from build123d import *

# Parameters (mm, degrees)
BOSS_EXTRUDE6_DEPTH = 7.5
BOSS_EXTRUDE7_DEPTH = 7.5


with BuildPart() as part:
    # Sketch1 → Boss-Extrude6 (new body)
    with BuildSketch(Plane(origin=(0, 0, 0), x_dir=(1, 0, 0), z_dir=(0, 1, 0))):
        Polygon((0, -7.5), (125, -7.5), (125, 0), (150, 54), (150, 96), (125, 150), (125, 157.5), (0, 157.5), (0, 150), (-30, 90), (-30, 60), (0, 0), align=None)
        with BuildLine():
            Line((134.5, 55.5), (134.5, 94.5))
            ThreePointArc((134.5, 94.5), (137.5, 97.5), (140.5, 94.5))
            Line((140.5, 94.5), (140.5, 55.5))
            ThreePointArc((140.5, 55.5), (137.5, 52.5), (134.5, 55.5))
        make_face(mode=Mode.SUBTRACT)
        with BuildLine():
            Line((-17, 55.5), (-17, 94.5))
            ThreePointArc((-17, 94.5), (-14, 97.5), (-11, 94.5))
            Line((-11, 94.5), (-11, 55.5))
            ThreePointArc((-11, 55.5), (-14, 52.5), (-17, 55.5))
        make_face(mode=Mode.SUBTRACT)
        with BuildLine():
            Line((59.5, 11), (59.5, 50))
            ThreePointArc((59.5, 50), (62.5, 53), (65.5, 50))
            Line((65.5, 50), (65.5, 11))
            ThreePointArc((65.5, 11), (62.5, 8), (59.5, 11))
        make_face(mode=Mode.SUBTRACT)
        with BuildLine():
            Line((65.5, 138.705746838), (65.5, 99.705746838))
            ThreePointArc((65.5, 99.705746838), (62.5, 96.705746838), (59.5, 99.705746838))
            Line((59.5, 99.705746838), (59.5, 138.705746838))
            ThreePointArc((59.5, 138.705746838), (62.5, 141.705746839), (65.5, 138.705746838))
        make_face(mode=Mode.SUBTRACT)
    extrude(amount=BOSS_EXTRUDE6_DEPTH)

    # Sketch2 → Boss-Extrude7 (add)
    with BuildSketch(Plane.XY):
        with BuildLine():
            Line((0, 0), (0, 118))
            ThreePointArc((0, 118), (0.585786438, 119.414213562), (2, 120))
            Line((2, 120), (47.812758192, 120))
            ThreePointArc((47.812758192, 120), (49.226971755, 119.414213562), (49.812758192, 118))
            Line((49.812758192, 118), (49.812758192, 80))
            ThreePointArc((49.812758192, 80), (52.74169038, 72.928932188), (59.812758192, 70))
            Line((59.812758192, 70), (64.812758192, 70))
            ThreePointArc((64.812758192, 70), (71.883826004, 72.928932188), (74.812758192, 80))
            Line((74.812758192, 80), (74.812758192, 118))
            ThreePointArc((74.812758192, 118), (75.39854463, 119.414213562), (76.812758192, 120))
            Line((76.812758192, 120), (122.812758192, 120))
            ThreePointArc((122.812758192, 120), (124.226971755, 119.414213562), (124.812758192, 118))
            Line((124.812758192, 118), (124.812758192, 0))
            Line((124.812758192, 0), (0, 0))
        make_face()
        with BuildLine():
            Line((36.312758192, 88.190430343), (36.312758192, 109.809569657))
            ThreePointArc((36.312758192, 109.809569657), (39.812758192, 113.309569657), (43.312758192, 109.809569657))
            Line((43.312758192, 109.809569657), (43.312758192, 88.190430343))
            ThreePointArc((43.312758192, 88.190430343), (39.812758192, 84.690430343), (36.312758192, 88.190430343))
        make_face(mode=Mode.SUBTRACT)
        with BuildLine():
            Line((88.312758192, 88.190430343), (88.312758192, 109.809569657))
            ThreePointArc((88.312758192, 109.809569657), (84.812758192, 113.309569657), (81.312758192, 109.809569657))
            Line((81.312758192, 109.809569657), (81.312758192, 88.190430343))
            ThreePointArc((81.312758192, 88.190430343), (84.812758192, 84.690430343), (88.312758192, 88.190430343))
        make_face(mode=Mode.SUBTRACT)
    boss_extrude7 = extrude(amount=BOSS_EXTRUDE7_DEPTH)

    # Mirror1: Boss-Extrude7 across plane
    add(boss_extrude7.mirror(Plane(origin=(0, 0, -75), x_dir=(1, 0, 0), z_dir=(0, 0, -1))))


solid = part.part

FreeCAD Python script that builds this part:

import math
import FreeCAD as App
import Part
import Sketcher

V = App.Vector
Q = App.Units.Quantity


def add_polygon(sketch, points):
    """Adds a closed chain of lines whose ends are joined by coincident constraints."""
    first, n = sketch.GeometryCount, len(points)
    for a, b in zip(points, points[1:] + points[:1]):
        sketch.addGeometry(Part.LineSegment(App.Vector(*a, 0), App.Vector(*b, 0)), False)
    for i in range(n):
        sketch.addConstraint(Sketcher.Constraint("Coincident", first + i, 2, first + (i + 1) % n, 1))

doc = App.newDocument("Part")
body = doc.addObject("PartDesign::Body", "Body")

# Sketch on XZ plane
sketch1 = body.newObject("Sketcher::SketchObject", "Sketch")
sketch1.AttachmentSupport = (doc.getObject("XZ_Plane"), [""])
sketch1.MapMode = "FlatFace"
add_polygon(sketch1, [(0, 7.5), (125, 7.5), (125, 0), (150, -54), (150, -96), (125, -150), (125, -157.5), (0, -157.5), (0, -150), (-30, -90), (-30, -60), (0, 0)])  # lines 0-11
sketch1.addGeometry(Part.ArcOfCircle(Part.Circle(V(62.5, -11, 0), V(0, 0, 1), 3), math.radians(0), math.radians(180)), False)  # 12
sketch1.addGeometry(Part.LineSegment(V(59.5, -11, 0), V(59.5, -50, 0)), False)  # 13
sketch1.addGeometry(Part.ArcOfCircle(Part.Circle(V(62.5, -50, 0), V(0, 0, 1), 3), math.radians(180), math.radians(360)), False)  # 14
sketch1.addGeometry(Part.LineSegment(V(65.5, -50, 0), V(65.5, -11, 0)), False)  # 15
sketch1.addGeometry(Part.ArcOfCircle(Part.Circle(V(-14, -55.5, 0), V(0, 0, 1), 3), math.radians(0), math.radians(180)), False)  # 16
sketch1.addGeometry(Part.LineSegment(V(-17, -55.5, 0), V(-17, -94.5, 0)), False)  # 17
sketch1.addGeometry(Part.ArcOfCircle(Part.Circle(V(-14, -94.5, 0), V(0, 0, 1), 3), math.radians(180), math.radians(360)), False)  # 18
sketch1.addGeometry(Part.LineSegment(V(-11, -94.5, 0), V(-11, -55.5, 0)), False)  # 19
sketch1.addGeometry(Part.ArcOfCircle(Part.Circle(V(137.5, -55.5, 0), V(0, 0, 1), 3), math.radians(0), math.radians(180)), False)  # 20
sketch1.addGeometry(Part.LineSegment(V(134.5, -55.5, 0), V(134.5, -94.5, 0)), False)  # 21
sketch1.addGeometry(Part.ArcOfCircle(Part.Circle(V(137.5, -94.5, 0), V(0, 0, 1), 3), math.radians(180), math.radians(360)), False)  # 22
sketch1.addGeometry(Part.LineSegment(V(140.5, -94.5, 0), V(140.5, -55.5, 0)), False)  # 23
sketch1.addGeometry(Part.ArcOfCircle(Part.Circle(V(62.5, -138.705747, 0), V(0, 0, 1), 3), math.radians(180), math.radians(360)), False)  # 24
sketch1.addGeometry(Part.LineSegment(V(65.5, -138.705747, 0), V(65.5, -99.705747, 0)), False)  # 25
sketch1.addGeometry(Part.ArcOfCircle(Part.Circle(V(62.5, -99.705747, 0), V(0, 0, 1), 3), math.radians(0), math.radians(180)), False)  # 26
sketch1.addGeometry(Part.LineSegment(V(59.5, -99.705747, 0), V(59.5, -138.705747, 0)), False)  # 27
sketch1.addConstraint(Sketcher.Constraint("Tangent", 12, 2, 13, 1))
sketch1.addConstraint(Sketcher.Constraint("Tangent", 13, 2, 14, 1))
sketch1.addConstraint(Sketcher.Constraint("Tangent", 14, 2, 15, 1))
sketch1.addConstraint(Sketcher.Constraint("Tangent", 15, 2, 12, 1))
sketch1.addConstraint(Sketcher.Constraint("Tangent", 16, 2, 17, 1))
sketch1.addConstraint(Sketcher.Constraint("Tangent", 17, 2, 18, 1))
sketch1.addConstraint(Sketcher.Constraint("Tangent", 18, 2, 19, 1))
sketch1.addConstraint(Sketcher.Constraint("Tangent", 19, 2, 16, 1))
sketch1.addConstraint(Sketcher.Constraint("Tangent", 20, 2, 21, 1))
sketch1.addConstraint(Sketcher.Constraint("Tangent", 21, 2, 22, 1))
sketch1.addConstraint(Sketcher.Constraint("Tangent", 22, 2, 23, 1))
sketch1.addConstraint(Sketcher.Constraint("Tangent", 23, 2, 20, 1))
sketch1.addConstraint(Sketcher.Constraint("Tangent", 24, 2, 25, 1))
sketch1.addConstraint(Sketcher.Constraint("Tangent", 25, 2, 26, 1))
sketch1.addConstraint(Sketcher.Constraint("Tangent", 26, 2, 27, 1))
sketch1.addConstraint(Sketcher.Constraint("Tangent", 27, 2, 24, 1))
sketch1.addConstraint(Sketcher.Constraint("Horizontal", 0))
sketch1.addConstraint(Sketcher.Constraint("Vertical", 1))
sketch1.addConstraint(Sketcher.Constraint("Vertical", 3))
sketch1.addConstraint(Sketcher.Constraint("Vertical", 5))
sketch1.addConstraint(Sketcher.Constraint("Horizontal", 6))
sketch1.addConstraint(Sketcher.Constraint("Vertical", 7))
sketch1.addConstraint(Sketcher.Constraint("Vertical", 9))
sketch1.addConstraint(Sketcher.Constraint("Vertical", 11))
sketch1.addConstraint(Sketcher.Constraint("Vertical", 13))
sketch1.addConstraint(Sketcher.Constraint("Vertical", 15))
sketch1.addConstraint(Sketcher.Constraint("Vertical", 17))
sketch1.addConstraint(Sketcher.Constraint("Vertical", 19))
sketch1.addConstraint(Sketcher.Constraint("Vertical", 21))
sketch1.addConstraint(Sketcher.Constraint("Vertical", 23))
sketch1.addConstraint(Sketcher.Constraint("Vertical", 25))
sketch1.addConstraint(Sketcher.Constraint("Vertical", 27))
sketch1.addConstraint(Sketcher.Constraint("Coincident", 10, 2, -1, 1))
sketch1.addConstraint(Sketcher.Constraint("Equal", 14, 16))
sketch1.addConstraint(Sketcher.Constraint("Equal", 18, 20))
sketch1.addConstraint(Sketcher.Constraint("Equal", 22, 24))
sketch1.addConstraint(Sketcher.Constraint("PointOnObject", 1, 2, -1))
sketch1.addConstraint(Sketcher.Constraint("PointOnObject", 6, 2, -2))
sketch1.addConstraint(Sketcher.Constraint("Horizontal", 16, 3, 20, 3))
sketch1.addConstraint(Sketcher.Constraint("Horizontal", 18, 3, 22, 3))
sketch1.addConstraint(Sketcher.Constraint("Horizontal", 4, 2, 7, 2))
sketch1.addConstraint(Sketcher.Constraint("Vertical", 14, 3, 24, 3))
sketch1.addConstraint(Sketcher.Constraint("Vertical", 1, 2, 4, 2))
sketch1.addConstraint(Sketcher.Constraint("Equal", 1, 5))
sketch1.addConstraint(Sketcher.Constraint("Equal", 15, 17))
sketch1.addConstraint(Sketcher.Constraint("Equal", 23, 25))
sketch1.addConstraint(Sketcher.Constraint("Equal", 2, 4))
sketch1.addConstraint(Sketcher.Constraint("Equal", 8, 10))
sketch1.addConstraint(Sketcher.Constraint("Radius", 12, Q("3 mm")))
sketch1.addConstraint(Sketcher.Constraint("DistanceX", 0, 1, 0, 2, Q("125 mm")))
sketch1.addConstraint(Sketcher.Constraint("DistanceY", 3, 2, 3, 1, Q("42 mm")))
sketch1.addConstraint(Sketcher.Constraint("DistanceY", 9, 1, 9, 2, Q("30 mm")))
sketch1.addConstraint(Sketcher.Constraint("DistanceY", 13, 2, 13, 1, Q("39 mm")))
sketch1.addConstraint(Sketcher.Constraint("DistanceY", 1, 2, 1, 1, Q("7.5 mm")))
sketch1.addConstraint(Sketcher.Constraint("DistanceY", 12, 3, -1, 1, Q("11 mm")))
sketch1.addConstraint(Sketcher.Constraint("DistanceX", 16, 3, -1, 1, Q("14 mm")))
sketch1.addConstraint(Sketcher.Constraint("DistanceX", -1, 1, 2, 2, Q("150 mm")))
sketch1.addConstraint(Sketcher.Constraint("DistanceY", 2, 2, -1, 1, Q("54 mm")))
sketch1.addConstraint(Sketcher.Constraint("DistanceX", 8, 2, -1, 1, Q("30 mm")))
sketch1.addConstraint(Sketcher.Constraint("DistanceX", 14, 3, 20, 3, Q("75 mm")))
sketch1.addConstraint(Sketcher.Constraint("DistanceY", 20, 3, 0, 2, Q("63 mm")))
sketch1.addConstraint(Sketcher.Constraint("DistanceX", -1, 1, 12, 3, Q("62.5 mm")))
sketch1.addConstraint(Sketcher.Constraint("DistanceY", 24, 3, -1, 1, Q("138.705747 mm")))
pad1 = body.newObject("PartDesign::Pad", "Pad")
pad1.Profile = sketch1
pad1.Length = 7.5
pad1.Reversed = True

# Sketch on XY plane
sketch2 = body.newObject("Sketcher::SketchObject", "Sketch001")
sketch2.AttachmentSupport = (doc.getObject("XY_Plane"), [""])
sketch2.MapMode = "FlatFace"
sketch2.addGeometry(Part.LineSegment(V(0, 118, 0), V(0, 0, 0)), False)
sketch2.addGeometry(Part.LineSegment(V(0, 0, 0), V(124.812758, 0, 0)), False)
sketch2.addGeometry(Part.LineSegment(V(124.812758, 0, 0), V(124.812758, 118, 0)), False)
sketch2.addGeometry(Part.ArcOfCircle(Part.Circle(V(122.812758, 118, 0), V(0, 0, 1), 2), math.radians(0), math.radians(90)), False)
sketch2.addGeometry(Part.LineSegment(V(122.812758, 120, 0), V(76.812758, 120, 0)), False)
sketch2.addGeometry(Part.ArcOfCircle(Part.Circle(V(76.812758, 118, 0), V(0, 0, 1), 2), math.radians(90), math.radians(180)), False)
sketch2.addGeometry(Part.LineSegment(V(74.812758, 118, 0), V(74.812758, 80, 0)), False)
sketch2.addGeometry(Part.ArcOfCircle(Part.Circle(V(64.812758, 80, 0), V(0, 0, 1), 10), math.radians(-90), math.radians(0)), False)
sketch2.addGeometry(Part.LineSegment(V(64.812758, 70, 0), V(59.812758, 70, 0)), False)
sketch2.addGeometry(Part.ArcOfCircle(Part.Circle(V(59.812758, 80, 0), V(0, 0, 1), 10), math.radians(180), math.radians(270)), False)
sketch2.addGeometry(Part.LineSegment(V(49.812758, 80, 0), V(49.812758, 118, 0)), False)
sketch2.addGeometry(Part.ArcOfCircle(Part.Circle(V(47.812758, 118, 0), V(0, 0, 1), 2), math.radians(0), math.radians(90)), False)
sketch2.addGeometry(Part.LineSegment(V(47.812758, 120, 0), V(2, 120, 0)), False)
sketch2.addGeometry(Part.ArcOfCircle(Part.Circle(V(2, 118, 0), V(0, 0, 1), 2), math.radians(90), math.radians(180)), False)
sketch2.addGeometry(Part.ArcOfCircle(Part.Circle(V(84.812758, 88.19043, 0), V(0, 0, 1), 3.5), math.radians(180), math.radians(360)), False)
sketch2.addGeometry(Part.LineSegment(V(81.312758, 88.19043, 0), V(81.312758, 109.80957, 0)), False)
sketch2.addGeometry(Part.ArcOfCircle(Part.Circle(V(84.812758, 109.80957, 0), V(0, 0, 1), 3.5), math.radians(0), math.radians(180)), False)
sketch2.addGeometry(Part.LineSegment(V(88.312758, 109.80957, 0), V(88.312758, 88.19043, 0)), False)
sketch2.addGeometry(Part.LineSegment(V(36.312758, 88.19043, 0), V(36.312758, 109.80957, 0)), False)
sketch2.addGeometry(Part.ArcOfCircle(Part.Circle(V(39.812758, 109.80957, 0), V(0, 0, 1), 3.5), math.radians(0), math.radians(180)), False)
sketch2.addGeometry(Part.LineSegment(V(43.312758, 109.80957, 0), V(43.312758, 88.19043, 0)), False)
sketch2.addGeometry(Part.ArcOfCircle(Part.Circle(V(39.812758, 88.19043, 0), V(0, 0, 1), 3.5), math.radians(180), math.radians(360)), False)
sketch2.addConstraint(Sketcher.Constraint("Coincident", 0, 2, 1, 1))
sketch2.addConstraint(Sketcher.Constraint("Coincident", 1, 2, 2, 1))
sketch2.addConstraint(Sketcher.Constraint("Tangent", 2, 2, 3, 1))
sketch2.addConstraint(Sketcher.Constraint("Tangent", 3, 2, 4, 1))
sketch2.addConstraint(Sketcher.Constraint("Tangent", 4, 2, 5, 1))
sketch2.addConstraint(Sketcher.Constraint("Tangent", 5, 2, 6, 1))
sketch2.addConstraint(Sketcher.Constraint("Tangent", 6, 2, 7, 2))
sketch2.addConstraint(Sketcher.Constraint("Tangent", 7, 1, 8, 1))
sketch2.addConstraint(Sketcher.Constraint("Tangent", 8, 2, 9, 2))
sketch2.addConstraint(Sketcher.Constraint("Tangent", 9, 1, 10, 1))
sketch2.addConstraint(Sketcher.Constraint("Tangent", 10, 2, 11, 1))
sketch2.addConstraint(Sketcher.Constraint("Tangent", 11, 2, 12, 1))
sketch2.addConstraint(Sketcher.Constraint("Tangent", 12, 2, 13, 1))
sketch2.addConstraint(Sketcher.Constraint("Tangent", 13, 2, 0, 1))
sketch2.addConstraint(Sketcher.Constraint("Tangent", 14, 1, 15, 1))
sketch2.addConstraint(Sketcher.Constraint("Tangent", 15, 2, 16, 2))
sketch2.addConstraint(Sketcher.Constraint("Tangent", 16, 1, 17, 1))
sketch2.addConstraint(Sketcher.Constraint("Tangent", 17, 2, 14, 2))
sketch2.addConstraint(Sketcher.Constraint("Tangent", 18, 2, 19, 2))
sketch2.addConstraint(Sketcher.Constraint("Tangent", 19, 1, 20, 1))
sketch2.addConstraint(Sketcher.Constraint("Tangent", 20, 2, 21, 2))
sketch2.addConstraint(Sketcher.Constraint("Tangent", 21, 1, 18, 1))
sketch2.addConstraint(Sketcher.Constraint("Vertical", 0))
sketch2.addConstraint(Sketcher.Constraint("Horizontal", 1))
sketch2.addConstraint(Sketcher.Constraint("Vertical", 2))
sketch2.addConstraint(Sketcher.Constraint("Horizontal", 4))
sketch2.addConstraint(Sketcher.Constraint("Vertical", 6))
sketch2.addConstraint(Sketcher.Constraint("Horizontal", 8))
sketch2.addConstraint(Sketcher.Constraint("Vertical", 10))
sketch2.addConstraint(Sketcher.Constraint("Horizontal", 12))
sketch2.addConstraint(Sketcher.Constraint("Vertical", 15))
sketch2.addConstraint(Sketcher.Constraint("Vertical", 17))
sketch2.addConstraint(Sketcher.Constraint("Vertical", 18))
sketch2.addConstraint(Sketcher.Constraint("Vertical", 20))
sketch2.addConstraint(Sketcher.Constraint("Coincident", 0, 2, -1, 1))
sketch2.addConstraint(Sketcher.Constraint("Equal", 3, 5))
sketch2.addConstraint(Sketcher.Constraint("Equal", 7, 9))
sketch2.addConstraint(Sketcher.Constraint("Equal", 5, 11))
sketch2.addConstraint(Sketcher.Constraint("Equal", 11, 13))
sketch2.addConstraint(Sketcher.Constraint("Equal", 16, 19))
sketch2.addConstraint(Sketcher.Constraint("Horizontal", 5, 3, 11, 3))
sketch2.addConstraint(Sketcher.Constraint("Horizontal", 16, 3, 19, 3))
sketch2.addConstraint(Sketcher.Constraint("Horizontal", 14, 3, 21, 3))
sketch2.addConstraint(Sketcher.Constraint("Radius", 3, Q("2 mm")))
sketch2.addConstraint(Sketcher.Constraint("Radius", 7, Q("10 mm")))
sketch2.addConstraint(Sketcher.Constraint("Radius", 14, Q("3.5 mm")))
sketch2.addConstraint(Sketcher.Constraint("DistanceX", 4, 2, 4, 1, Q("46 mm")))
sketch2.addConstraint(Sketcher.Constraint("DistanceX", 8, 2, 8, 1, Q("5 mm")))
sketch2.addConstraint(Sketcher.Constraint("DistanceY", 0, 2, 0, 1, Q("118 mm")))
sketch2.addConstraint(Sketcher.Constraint("DistanceY", 6, 2, 6, 1, Q("38 mm")))
sketch2.addConstraint(Sketcher.Constraint("DistanceX", 7, 3, 14, 3, Q("20 mm")))
sketch2.addConstraint(Sketcher.Constraint("DistanceX", 19, 3, 11, 3, Q("8 mm")))
sketch2.addConstraint(Sketcher.Constraint("DistanceX", 1, 1, 1, 2, Q("124.812758 mm")))
sketch2.addConstraint(Sketcher.Constraint("DistanceY", 15, 1, 15, 2, Q("21.619139 mm")))
sketch2.addConstraint(Sketcher.Constraint("DistanceY", -1, 1, 14, 3, Q("88.19043 mm")))
pad2 = body.newObject("PartDesign::Pad", "Pad001")
pad2.Profile = sketch2
pad2.Length = 7.5
doc.recompute()

datumplane = body.newObject("PartDesign::Plane", "DatumPlane")
datumplane.AttachmentSupport = (doc.getObject("XY_Plane"), [""])
datumplane.MapMode = "FlatFace"
datumplane.AttachmentOffset = App.Placement(V(0, 0, -75), App.Rotation())
mirrored = body.newObject("PartDesign::Mirrored", "Mirrored")
mirrored.Originals = [pad2]
mirrored.MirrorPlane = (datumplane, [""])
body.Tip = mirrored

doc.recompute()
